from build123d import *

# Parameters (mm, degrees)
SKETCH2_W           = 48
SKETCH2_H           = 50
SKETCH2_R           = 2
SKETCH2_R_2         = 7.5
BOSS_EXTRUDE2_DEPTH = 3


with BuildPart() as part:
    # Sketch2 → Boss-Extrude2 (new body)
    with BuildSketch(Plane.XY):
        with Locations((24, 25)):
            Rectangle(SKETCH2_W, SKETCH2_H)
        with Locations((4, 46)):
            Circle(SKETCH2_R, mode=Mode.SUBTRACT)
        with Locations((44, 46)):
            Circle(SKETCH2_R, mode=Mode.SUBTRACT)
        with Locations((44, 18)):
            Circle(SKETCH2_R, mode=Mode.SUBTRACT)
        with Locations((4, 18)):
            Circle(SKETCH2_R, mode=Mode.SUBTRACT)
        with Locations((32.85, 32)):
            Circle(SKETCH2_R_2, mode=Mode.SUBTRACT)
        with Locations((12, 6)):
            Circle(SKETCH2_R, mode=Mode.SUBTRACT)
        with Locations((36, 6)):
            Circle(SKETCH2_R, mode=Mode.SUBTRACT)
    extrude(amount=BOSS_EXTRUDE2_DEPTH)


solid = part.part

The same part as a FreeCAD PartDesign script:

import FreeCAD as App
import Part
import Sketcher
Q = App.Units.Quantity


def add_polygon(sketch, points):
    """Adds a closed chain of lines whose ends are joined by coincident constraints."""
    first, n = sketch.GeometryCount, len(points)
    for a, b in zip(points, points[1:] + points[:1]):
        sketch.addGeometry(Part.LineSegment(App.Vector(*a, 0), App.Vector(*b, 0)), False)
    for i in range(n):
        sketch.addConstraint(Sketcher.Constraint("Coincident", first + i, 2, first + (i + 1) % n, 1))

doc = App.newDocument("Part")
body = doc.addObject("PartDesign::Body", "Body")

# Sketch on XY plane
sketch1 = body.newObject("Sketcher::SketchObject", "Sketch")
sketch1.AttachmentSupport = (doc.getObject("XY_Plane"), [""])
sketch1.MapMode = "FlatFace"
add_polygon(sketch1, [(0, 50), (0, 0), (48, 0), (48, 50)])  # lines 0-3
sketch1.addGeometry(Part.Circle(App.Vector(12, 6, 0), App.Vector(0, 0, 1), 2), False)  # 4
sketch1.addGeometry(Part.Circle(App.Vector(4, 18, 0), App.Vector(0, 0, 1), 2), False)  # 5
sketch1.addGeometry(Part.Circle(App.Vector(36, 6, 0), App.Vector(0, 0, 1), 2), False)  # 6
sketch1.addGeometry(Part.Circle(App.Vector(44, 18, 0), App.Vector(0, 0, 1), 2), False)  # 7
sketch1.addGeometry(Part.Circle(App.Vector(4, 46, 0), App.Vector(0, 0, 1), 2), False)  # 8
sketch1.addGeometry(Part.Circle(App.Vector(32.9, 32, 0), App.Vector(0, 0, 1), 7.5), False)  # 9
sketch1.addGeometry(Part.Circle(App.Vector(44, 46, 0), App.Vector(0, 0, 1), 2), False)  # 10
sketch1.addConstraint([
    Sketcher.Constraint("Vertical", 0),
    Sketcher.Constraint("Horizontal", 1),
    Sketcher.Constraint("Vertical", 2),
    Sketcher.Constraint("Horizontal", 3),
    Sketcher.Constraint("Coincident", 0, 2, -1, 1),
    Sketcher.Constraint("Equal", 4, 5),
    Sketcher.Constraint("Equal", 5, 6),
    Sketcher.Constraint("Equal", 6, 7),
    Sketcher.Constraint("Equal", 7, 8),
    Sketcher.Constraint("Equal", 8, 10),
    Sketcher.Constraint("Horizontal", 4, 3, 6, 3),
    Sketcher.Constraint("Horizontal", 5, 3, 7, 3),
    Sketcher.Constraint("Horizontal", 8, 3, 10, 3),
    Sketcher.Constraint("Vertical", 5, 3, 8, 3),
    Sketcher.Constraint("Vertical", 7, 3, 10, 3),
    Sketcher.Constraint("Diameter", 4, Q("4 mm")),
    Sketcher.Constraint("Diameter", 9, Q("15 mm")),
    Sketcher.Constraint("DistanceX", 1, 1, 1, 2, Q("48 mm")),
    Sketcher.Constraint("DistanceY", 0, 2, 0, 1, Q("50 mm")),
    Sketcher.Constraint("DistanceX", -1, 1, 4, 3, Q("12 mm")),
    Sketcher.Constraint("DistanceY", -1, 1, 4, 3, Q("6 mm")),
    Sketcher.Constraint("DistanceX", -1, 1, 5, 3, Q("4 mm")),
    Sketcher.Constraint("DistanceY", -1, 1, 5, 3, Q("18 mm")),
    Sketcher.Constraint("DistanceX", -1, 1, 6, 3, Q("36 mm")),
    Sketcher.Constraint("DistanceX", -1, 1, 7, 3, Q("44 mm")),
    Sketcher.Constraint("DistanceY", -1, 1, 8, 3, Q("46 mm")),
    Sketcher.Constraint("DistanceY", -1, 1, 9, 3, Q("32 mm")),
    Sketcher.Constraint("DistanceX", -1, 1, 9, 3, Q("32.85 mm")),
])
pad1 = body.newObject("PartDesign::Pad", "Pad")
pad1.Profile = sketch1
pad1.Length = 3

doc.recompute()
